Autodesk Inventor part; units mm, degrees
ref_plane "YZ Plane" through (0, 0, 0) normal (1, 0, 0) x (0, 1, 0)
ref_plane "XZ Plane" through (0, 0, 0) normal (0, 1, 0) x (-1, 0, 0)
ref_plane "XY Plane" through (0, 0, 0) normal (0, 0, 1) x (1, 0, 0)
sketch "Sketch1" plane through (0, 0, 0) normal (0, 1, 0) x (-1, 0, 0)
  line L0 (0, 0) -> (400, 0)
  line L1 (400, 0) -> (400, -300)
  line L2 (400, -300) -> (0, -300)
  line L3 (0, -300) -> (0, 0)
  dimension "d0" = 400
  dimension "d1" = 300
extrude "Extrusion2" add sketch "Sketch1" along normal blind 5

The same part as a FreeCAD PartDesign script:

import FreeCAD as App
import Part
import Sketcher

doc = App.newDocument("Part")
body = doc.addObject("PartDesign::Body", "Body")

sketch1 = doc.addObject("Sketcher::SketchObject", "Sketch")
body.addObject(sketch1)
sketch1.AttachmentSupport = (doc.XZ_Plane, [""])
sketch1.MapMode = "FlatFace"
sketch1.addGeometry(Part.LineSegment(App.Vector(-400, 0, 0), App.Vector(0, 0, 0)), False)
sketch1.addGeometry(Part.LineSegment(App.Vector(0, 0, 0), App.Vector(0, -300, 0)), False)
sketch1.addGeometry(Part.LineSegment(App.Vector(0, -300, 0), App.Vector(-400, -300, 0)), False)
sketch1.addGeometry(Part.LineSegment(App.Vector(-400, -300, 0), App.Vector(-400, 0, 0)), False)
sketch1.addConstraint(Sketcher.Constraint("Coincident", 0, 2, 1, 1))
sketch1.addConstraint(Sketcher.Constraint("Coincident", 1, 2, 2, 1))
sketch1.addConstraint(Sketcher.Constraint("Coincident", 2, 2, 3, 1))
sketch1.addConstraint(Sketcher.Constraint("Coincident", 3, 2, 0, 1))
sketch1.addConstraint(Sketcher.Constraint("Horizontal", 0))
sketch1.addConstraint(Sketcher.Constraint("Vertical", 1))
sketch1.addConstraint(Sketcher.Constraint("Horizontal", 2))
sketch1.addConstraint(Sketcher.Constraint("Vertical", 3))
sketch1.addConstraint(Sketcher.Constraint("Coincident", 0, 2, -1, 1))
sketch1.addConstraint(Sketcher.Constraint("DistanceX", 0, 1, 0, 2, 400.0))
sketch1.addConstraint(Sketcher.Constraint("DistanceY", 1, 2, 1, 1, 300.0))
pad1 = doc.addObject("PartDesign::Pad", "Pad")
body.addObject(pad1)
pad1.Profile = sketch1
pad1.Length = 5
pad1.Reversed = True

doc.recompute()
